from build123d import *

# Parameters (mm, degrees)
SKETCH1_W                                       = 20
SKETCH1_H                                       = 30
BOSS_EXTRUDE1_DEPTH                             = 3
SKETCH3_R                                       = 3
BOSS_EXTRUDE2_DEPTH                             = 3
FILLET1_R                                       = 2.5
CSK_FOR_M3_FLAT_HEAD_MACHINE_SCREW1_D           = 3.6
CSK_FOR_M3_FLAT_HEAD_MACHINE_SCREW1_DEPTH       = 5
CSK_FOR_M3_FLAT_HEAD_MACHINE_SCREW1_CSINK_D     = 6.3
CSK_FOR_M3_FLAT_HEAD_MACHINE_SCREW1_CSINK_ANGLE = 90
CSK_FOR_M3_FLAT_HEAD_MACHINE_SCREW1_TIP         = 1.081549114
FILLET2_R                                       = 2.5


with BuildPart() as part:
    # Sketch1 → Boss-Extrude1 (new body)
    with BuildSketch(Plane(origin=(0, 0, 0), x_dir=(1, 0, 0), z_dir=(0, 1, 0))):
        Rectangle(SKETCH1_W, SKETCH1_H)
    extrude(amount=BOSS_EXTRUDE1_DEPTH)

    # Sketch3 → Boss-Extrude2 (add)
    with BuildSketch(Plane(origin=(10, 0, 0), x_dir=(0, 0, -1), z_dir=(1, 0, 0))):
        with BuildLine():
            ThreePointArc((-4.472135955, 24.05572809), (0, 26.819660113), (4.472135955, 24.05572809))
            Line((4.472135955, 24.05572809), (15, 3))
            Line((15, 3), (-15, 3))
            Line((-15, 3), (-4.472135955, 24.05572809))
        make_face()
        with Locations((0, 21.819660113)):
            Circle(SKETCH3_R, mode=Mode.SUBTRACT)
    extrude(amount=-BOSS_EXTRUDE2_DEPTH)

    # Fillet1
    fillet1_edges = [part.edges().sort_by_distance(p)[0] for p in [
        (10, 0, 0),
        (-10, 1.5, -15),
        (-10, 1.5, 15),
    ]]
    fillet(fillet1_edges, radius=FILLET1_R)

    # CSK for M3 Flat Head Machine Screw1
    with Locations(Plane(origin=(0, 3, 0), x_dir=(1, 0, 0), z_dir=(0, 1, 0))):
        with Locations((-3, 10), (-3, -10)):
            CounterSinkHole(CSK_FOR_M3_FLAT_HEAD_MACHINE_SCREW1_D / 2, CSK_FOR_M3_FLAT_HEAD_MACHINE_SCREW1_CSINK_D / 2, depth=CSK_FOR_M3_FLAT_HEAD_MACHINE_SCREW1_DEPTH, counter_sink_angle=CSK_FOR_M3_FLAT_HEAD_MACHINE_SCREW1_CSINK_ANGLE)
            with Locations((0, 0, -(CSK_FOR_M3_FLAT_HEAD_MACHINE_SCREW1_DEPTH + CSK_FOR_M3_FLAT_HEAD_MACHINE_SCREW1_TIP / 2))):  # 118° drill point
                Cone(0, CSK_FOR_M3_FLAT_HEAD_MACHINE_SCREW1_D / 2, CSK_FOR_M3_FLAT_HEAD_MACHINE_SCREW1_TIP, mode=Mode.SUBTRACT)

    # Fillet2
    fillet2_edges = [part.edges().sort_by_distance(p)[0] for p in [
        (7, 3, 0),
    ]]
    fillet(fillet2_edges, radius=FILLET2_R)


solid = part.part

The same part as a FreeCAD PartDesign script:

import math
import FreeCAD as App
import Part
import Sketcher
Q = App.Units.Quantity


def edges_at(feature, points):
    """Names of the edges that pass closest to the given points."""
    edges = feature.Shape.Edges
    near = lambda p: min(range(len(edges)), key=lambda i: edges[i].distToShape(Part.Vertex(*p))[0])
    return sorted({f"Edge{near(p) + 1}" for p in points})

doc = App.newDocument("Part")
body = doc.addObject("PartDesign::Body", "Body")

sketch1 = body.newObject("Sketcher::SketchObject", "Sketch")
sketch1.AttachmentSupport = (doc.getObject("XZ_Plane"), [""])
sketch1.MapMode = "FlatFace"
sketch1.addGeometry(Part.LineSegment(App.Vector(-10, -15, 0), App.Vector(-10, 15, 0)), False)
sketch1.addGeometry(Part.LineSegment(App.Vector(-10, 15, 0), App.Vector(10, 15, 0)), False)
sketch1.addGeometry(Part.LineSegment(App.Vector(10, 15, 0), App.Vector(10, -15, 0)), False)
sketch1.addGeometry(Part.LineSegment(App.Vector(10, -15, 0), App.Vector(-10, -15, 0)), False)
sketch1.addConstraint(Sketcher.Constraint("Coincident", 0, 2, 1, 1))
sketch1.addConstraint(Sketcher.Constraint("Coincident", 1, 2, 2, 1))
sketch1.addConstraint(Sketcher.Constraint("Coincident", 2, 2, 3, 1))
sketch1.addConstraint(Sketcher.Constraint("Coincident", 3, 2, 0, 1))
sketch1.addConstraint(Sketcher.Constraint("Vertical", 0))
sketch1.addConstraint(Sketcher.Constraint("Horizontal", 1))
sketch1.addConstraint(Sketcher.Constraint("Vertical", 2))
sketch1.addConstraint(Sketcher.Constraint("Horizontal", 3))
sketch1.addConstraint(Sketcher.Constraint("Symmetric", 0, 2, 2, 2, -1, 1))
sketch1.addConstraint(Sketcher.Constraint("DistanceX", 1, 1, 1, 2, Q("20 mm")))
sketch1.addConstraint(Sketcher.Constraint("DistanceY", 0, 1, 0, 2, Q("30 mm")))
pad1 = body.newObject("PartDesign::Pad", "Pad")
pad1.Profile = sketch1
pad1.Length = 3
pad1.Reversed = True

sketch2 = body.newObject("Sketcher::SketchObject", "Sketch001")
sketch2.AttachmentSupport = (doc.getObject("YZ_Plane"), [""])
sketch2.MapMode = "FlatFace"
sketch2.AttachmentOffset = App.Placement(App.Vector(0, 0, 10), App.Rotation())
sketch2.addGeometry(Part.ArcOfCircle(Part.Circle(App.Vector(21.8, 0, 0), App.Vector(0, 0, 1), 5), math.radians(-63), math.radians(63)), False)
sketch2.addGeometry(Part.LineSegment(App.Vector(24.1, 4.5, 0), App.Vector(3, 15, 0)), False)
sketch2.addGeometry(Part.LineSegment(App.Vector(3, 15, 0), App.Vector(3, -15, 0)), False)
sketch2.addGeometry(Part.LineSegment(App.Vector(3, -15, 0), App.Vector(24.1, -4.5, 0)), False)
sketch2.addGeometry(Part.Circle(App.Vector(21.8, 0, 0), App.Vector(0, 0, 1), 3), False)
sketch2.addConstraint(Sketcher.Constraint("Tangent", 0, 2, 1, 1))
sketch2.addConstraint(Sketcher.Constraint("Coincident", 1, 2, 2, 1))
sketch2.addConstraint(Sketcher.Constraint("Coincident", 2, 2, 3, 1))
sketch2.addConstraint(Sketcher.Constraint("Tangent", 3, 2, 0, 1))
sketch2.addConstraint(Sketcher.Constraint("Vertical", 2))
sketch2.addConstraint(Sketcher.Constraint("Coincident", 4, 3, 0, 3))
sketch2.addConstraint(Sketcher.Constraint("Symmetric", 0, 2, 3, 2, -1))
sketch2.addConstraint(Sketcher.Constraint("Diameter", 4, Q("6 mm")))
sketch2.addConstraint(Sketcher.Constraint("Radius", 0, Q("5 mm")))
sketch2.addConstraint(Sketcher.Constraint("DistanceY", 2, 2, 2, 1, Q("30 mm")))
sketch2.addConstraint(Sketcher.Constraint("DistanceX", -1, 1, 1, 2, Q("3 mm")))
sketch2.addConstraint(Sketcher.Constraint("Distance", 1, Q("23.54102 mm")))
pad2 = body.newObject("PartDesign::Pad", "Pad001")
pad2.Profile = sketch2
pad2.Length = 3
pad2.Reversed = True
doc.recompute()

fillet = body.newObject("PartDesign::Fillet", "Fillet")
fillet.Base = (pad2, edges_at(pad2, [(10, 0, 0), (-10, 1.5, -15), (-10, 1.5, 15)]))
fillet.Radius = 2.5

sketch3 = body.newObject("Sketcher::SketchObject", "Sketch002")
sketch3.AttachmentSupport = (doc.getObject("XZ_Plane"), [""])
sketch3.MapMode = "FlatFace"
sketch3.AttachmentOffset = App.Placement(App.Vector(0, 0, -3), App.Rotation())
sketch3.addGeometry(Part.Circle(App.Vector(-3, -10, 0), App.Vector(0, 0, 1), 1.8), False)
sketch3.addGeometry(Part.Circle(App.Vector(-3, 10, 0), App.Vector(0, 0, 1), 1.8), False)
sketch3.addConstraint(Sketcher.Constraint("Equal", 0, 1))
sketch3.addConstraint(Sketcher.Constraint("Symmetric", 0, 3, 1, 3, -1))
sketch3.addConstraint(Sketcher.Constraint("Diameter", 0, Q("3.6 mm")))
sketch3.addConstraint(Sketcher.Constraint("DistanceX", 0, 3, -1, 1, Q("3 mm")))
sketch3.addConstraint(Sketcher.Constraint("DistanceY", 0, 3, -1, 1, Q("10 mm")))
doc.recompute()
hole = body.newObject("PartDesign::Hole", "Hole")
hole.Profile = sketch3
hole.ThreadType = "None"
hole.Diameter = 3.6
hole.DepthType = "Dimension"
hole.Depth = 5
hole.DrillPoint = "Angled"
hole.DrillPointAngle = 118
hole.HoleCutType = "Countersink"
hole.HoleCutDiameter = 6.3
hole.HoleCutCountersinkAngle = 90
hole.Reversed = True
doc.recompute()

fillet2 = body.newObject("PartDesign::Fillet", "Fillet001")
fillet2.Base = (hole, edges_at(hole, [(7, 3, 0)]))
fillet2.Radius = 2.5

doc.recompute()
